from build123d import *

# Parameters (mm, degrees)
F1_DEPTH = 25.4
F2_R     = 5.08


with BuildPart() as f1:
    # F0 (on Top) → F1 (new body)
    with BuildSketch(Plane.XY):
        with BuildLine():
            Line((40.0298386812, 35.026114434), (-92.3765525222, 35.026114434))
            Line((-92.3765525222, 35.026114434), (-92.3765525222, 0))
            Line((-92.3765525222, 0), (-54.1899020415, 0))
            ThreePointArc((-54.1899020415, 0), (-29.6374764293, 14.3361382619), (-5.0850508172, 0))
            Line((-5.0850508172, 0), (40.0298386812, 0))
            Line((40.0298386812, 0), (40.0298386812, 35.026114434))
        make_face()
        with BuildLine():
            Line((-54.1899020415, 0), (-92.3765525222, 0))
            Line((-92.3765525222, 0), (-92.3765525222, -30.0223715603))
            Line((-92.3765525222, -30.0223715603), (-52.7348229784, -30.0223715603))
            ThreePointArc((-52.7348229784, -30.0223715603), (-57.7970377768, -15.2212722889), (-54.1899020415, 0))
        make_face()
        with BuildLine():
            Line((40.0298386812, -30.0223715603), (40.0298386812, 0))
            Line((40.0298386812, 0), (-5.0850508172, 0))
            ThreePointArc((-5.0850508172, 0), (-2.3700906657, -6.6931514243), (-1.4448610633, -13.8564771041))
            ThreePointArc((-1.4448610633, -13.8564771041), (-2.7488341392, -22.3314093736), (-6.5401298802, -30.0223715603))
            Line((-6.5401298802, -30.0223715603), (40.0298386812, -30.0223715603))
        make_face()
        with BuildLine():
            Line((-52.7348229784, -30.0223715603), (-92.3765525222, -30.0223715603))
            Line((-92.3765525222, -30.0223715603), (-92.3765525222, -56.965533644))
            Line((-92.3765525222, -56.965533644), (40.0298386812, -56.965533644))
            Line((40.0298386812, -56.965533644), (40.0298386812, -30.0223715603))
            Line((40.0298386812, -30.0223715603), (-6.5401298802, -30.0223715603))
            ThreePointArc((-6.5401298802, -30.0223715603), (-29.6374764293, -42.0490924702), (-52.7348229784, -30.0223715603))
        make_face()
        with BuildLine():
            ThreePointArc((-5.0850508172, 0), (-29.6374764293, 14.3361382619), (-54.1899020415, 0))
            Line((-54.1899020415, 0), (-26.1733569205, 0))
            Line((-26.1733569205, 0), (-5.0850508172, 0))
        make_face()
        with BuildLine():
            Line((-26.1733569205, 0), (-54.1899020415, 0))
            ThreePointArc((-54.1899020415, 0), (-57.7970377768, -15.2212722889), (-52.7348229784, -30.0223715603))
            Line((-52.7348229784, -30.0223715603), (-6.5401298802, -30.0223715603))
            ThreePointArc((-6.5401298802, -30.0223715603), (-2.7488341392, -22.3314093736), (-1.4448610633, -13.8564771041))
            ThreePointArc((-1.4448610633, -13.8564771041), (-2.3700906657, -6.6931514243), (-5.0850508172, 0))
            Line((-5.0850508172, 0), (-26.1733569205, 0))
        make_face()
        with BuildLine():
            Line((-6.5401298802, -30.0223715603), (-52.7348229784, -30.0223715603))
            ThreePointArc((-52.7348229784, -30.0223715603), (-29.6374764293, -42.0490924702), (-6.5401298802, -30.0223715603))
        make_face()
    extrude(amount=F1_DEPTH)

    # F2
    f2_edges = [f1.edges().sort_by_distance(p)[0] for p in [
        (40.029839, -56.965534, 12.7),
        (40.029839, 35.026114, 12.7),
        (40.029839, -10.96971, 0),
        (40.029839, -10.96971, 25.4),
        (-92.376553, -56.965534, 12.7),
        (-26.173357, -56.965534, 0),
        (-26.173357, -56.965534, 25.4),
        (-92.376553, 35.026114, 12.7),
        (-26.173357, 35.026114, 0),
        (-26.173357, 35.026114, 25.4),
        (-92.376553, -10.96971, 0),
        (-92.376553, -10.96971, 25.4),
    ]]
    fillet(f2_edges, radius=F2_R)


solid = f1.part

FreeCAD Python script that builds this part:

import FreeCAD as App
import Part
import Sketcher
Q = App.Units.Quantity


def add_polygon(sketch, points):
    """Adds a closed chain of lines whose ends are joined by coincident constraints."""
    first, n = sketch.GeometryCount, len(points)
    for a, b in zip(points, points[1:] + points[:1]):
        sketch.addGeometry(Part.LineSegment(App.Vector(*a, 0), App.Vector(*b, 0)), False)
    for i in range(n):
        sketch.addConstraint(Sketcher.Constraint("Coincident", first + i, 2, first + (i + 1) % n, 1))

doc = App.newDocument("Part")
body = doc.addObject("PartDesign::Body", "Body")

# Sketch on XY plane
sketch1 = doc.addObject("Sketcher::SketchObject", "Sketch")
body.addObject(sketch1)
sketch1.AttachmentSupport = (doc.XY_Plane, [""])
sketch1.MapMode = "FlatFace"
add_polygon(sketch1, [(40, 35), (-92, 35), (-92, -57), (40, -57)])  # lines 0-3
sketch1.addConstraint([
    Sketcher.Constraint("Horizontal", 0),
    Sketcher.Constraint("Vertical", 1),
    Sketcher.Constraint("Horizontal", 2),
    Sketcher.Constraint("Vertical", 3),
    Sketcher.Constraint("DistanceX", 0, 2, 0, 1, 132.406391),
    Sketcher.Constraint("DistanceY", 1, 2, 1, 1, 91.991648),
    Sketcher.Constraint("DistanceX", -1, 1, 2, 2, 40.029839),
    Sketcher.Constraint("DistanceY", -1, 1, 0, 2, 35.026114),
])
pad1 = doc.addObject("PartDesign::Pad", "Pad")
body.addObject(pad1)
pad1.Profile = sketch1
pad1.Length = Q("1 in")
doc.recompute()

fillet = doc.addObject("PartDesign::Fillet", "Fillet")
body.addObject(fillet)
fillet.Base = (pad1, ["Edge1"])
fillet.UseAllEdges = True
fillet.Radius = Q("0.2 in")

doc.recompute()
